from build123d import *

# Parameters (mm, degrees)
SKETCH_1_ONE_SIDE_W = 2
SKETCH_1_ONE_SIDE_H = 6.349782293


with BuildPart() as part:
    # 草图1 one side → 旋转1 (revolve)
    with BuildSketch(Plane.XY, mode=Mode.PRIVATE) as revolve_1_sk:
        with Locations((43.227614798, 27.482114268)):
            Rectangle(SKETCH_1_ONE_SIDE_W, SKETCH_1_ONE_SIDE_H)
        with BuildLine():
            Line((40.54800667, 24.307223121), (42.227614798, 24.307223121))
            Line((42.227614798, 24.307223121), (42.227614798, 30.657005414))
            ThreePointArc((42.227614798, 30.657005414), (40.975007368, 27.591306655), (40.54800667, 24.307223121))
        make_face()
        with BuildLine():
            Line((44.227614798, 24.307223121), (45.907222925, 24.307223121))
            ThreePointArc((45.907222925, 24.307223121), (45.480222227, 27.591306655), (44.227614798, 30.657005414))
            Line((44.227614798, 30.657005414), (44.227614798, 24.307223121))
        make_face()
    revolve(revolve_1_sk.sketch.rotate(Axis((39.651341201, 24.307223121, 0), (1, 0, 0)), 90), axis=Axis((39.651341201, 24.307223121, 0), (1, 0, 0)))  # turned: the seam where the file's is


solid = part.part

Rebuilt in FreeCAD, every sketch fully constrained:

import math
import FreeCAD as App
import Part
import Sketcher

V = App.Vector

doc = App.newDocument("Part")
body = doc.addObject("PartDesign::Body", "Body")

sketch1 = body.newObject("Sketcher::SketchObject", "Sketch")
sketch1.AttachmentSupport = (doc.getObject("XY_Plane"), [""])
sketch1.MapMode = "FlatFace"
sketch1.addGeometry([
    Part.LineSegment(V(42.2, 24.3, 0), V(45.9, 24.3, 0)),
    Part.ArcOfCircle(Part.Circle(V(33.1, 24.3, 0), V(0, 0, 1), 12.8), math.radians(0), math.radians(30)),
    Part.LineSegment(V(44.2, 30.7, 0), V(42.2, 30.7, 0)),
    Part.ArcOfCircle(Part.Circle(V(53.4, 24.3, 0), V(0, 0, 1), 12.8), math.radians(150), math.radians(180)),
    Part.LineSegment(V(40.5, 24.3, 0), V(42.2, 24.3, 0)),
], False)
sketch1.addGeometry(Part.LineSegment(V(33.1, 24.3, 0), V(53.4, 24.3, 0)), True)
sketch1.addConstraint([
    Sketcher.Constraint("Coincident", 0, 2, 1, 1),
    Sketcher.Constraint("Coincident", 1, 2, 2, 1),
    Sketcher.Constraint("Coincident", 2, 2, 3, 1),
    Sketcher.Constraint("Coincident", 3, 2, 4, 1),
    Sketcher.Constraint("Coincident", 4, 2, 0, 1),
    Sketcher.Constraint("Horizontal", 0),
    Sketcher.Constraint("Horizontal", 2),
    Sketcher.Constraint("Horizontal", 4),
    Sketcher.Constraint("Horizontal", 5),
    Sketcher.Constraint("Coincident", 5, 1, 1, 3),
    Sketcher.Constraint("Coincident", 5, 2, 3, 3),
    Sketcher.Constraint("Equal", 1, 3),
    Sketcher.Constraint("Horizontal", 3, 3, 0, 2),
    Sketcher.Constraint("Vertical", 2, 2, 4, 2),
    Sketcher.Constraint("DistanceX", 2, 2, 2, 1, 2.0),
    Sketcher.Constraint("Radius", 1, 12.842525),
    Sketcher.Constraint("DistanceX", 0, 1, 0, 2, 3.679608),
    Sketcher.Constraint("DistanceX", -1, 1, 3, 3, 53.390532),
    Sketcher.Constraint("DistanceY", -1, 1, 1, 3, 24.307223),
])
revolution = body.newObject("PartDesign::Revolution", "Revolution")
revolution.Profile = sketch1
revolution.ReferenceAxis = (sketch1, ["Axis0"])
revolution.Angle = 360

doc.recompute()
